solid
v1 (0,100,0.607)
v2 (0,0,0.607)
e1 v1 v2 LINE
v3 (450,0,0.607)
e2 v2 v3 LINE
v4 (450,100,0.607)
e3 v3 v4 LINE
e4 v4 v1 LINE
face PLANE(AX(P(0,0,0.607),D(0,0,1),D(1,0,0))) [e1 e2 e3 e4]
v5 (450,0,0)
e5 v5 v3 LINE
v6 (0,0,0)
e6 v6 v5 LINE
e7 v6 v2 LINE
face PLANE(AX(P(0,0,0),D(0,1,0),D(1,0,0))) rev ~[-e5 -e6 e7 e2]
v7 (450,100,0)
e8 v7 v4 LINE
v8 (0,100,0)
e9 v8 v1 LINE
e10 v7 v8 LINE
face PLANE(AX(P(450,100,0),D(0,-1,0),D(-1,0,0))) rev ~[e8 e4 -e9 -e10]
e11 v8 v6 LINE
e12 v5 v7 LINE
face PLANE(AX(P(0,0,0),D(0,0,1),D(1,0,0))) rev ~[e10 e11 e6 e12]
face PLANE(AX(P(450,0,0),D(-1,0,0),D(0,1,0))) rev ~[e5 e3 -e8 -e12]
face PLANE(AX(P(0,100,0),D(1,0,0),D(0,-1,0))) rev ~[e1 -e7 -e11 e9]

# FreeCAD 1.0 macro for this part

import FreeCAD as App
import Part
import Sketcher
from FreeCAD import Vector

doc = App.newDocument("Part")
body = doc.addObject("PartDesign::Body", "Body")

sketch1 = body.newObject("Sketcher::SketchObject", "Sketch")
sketch1.AttachmentSupport = (doc.getObject("XY_Plane"), [""])
sketch1.MapMode = "FlatFace"
sketch1.addGeometry(Part.LineSegment(Vector(0, 100, 0), Vector(0, 0, 0)), False)
sketch1.addGeometry(Part.LineSegment(Vector(0, 0, 0), Vector(450, 0, 0)), False)
sketch1.addGeometry(Part.LineSegment(Vector(450, 0, 0), Vector(450, 100, 0)), False)
sketch1.addGeometry(Part.LineSegment(Vector(450, 100, 0), Vector(0, 100, 0)), False)
sketch1.addConstraint(Sketcher.Constraint("Coincident", 0, 2, 1, 1))
sketch1.addConstraint(Sketcher.Constraint("Coincident", 1, 2, 2, 1))
sketch1.addConstraint(Sketcher.Constraint("Coincident", 2, 2, 3, 1))
sketch1.addConstraint(Sketcher.Constraint("Coincident", 3, 2, 0, 1))
sketch1.addConstraint(Sketcher.Constraint("Vertical", 0))
sketch1.addConstraint(Sketcher.Constraint("Horizontal", 1))
sketch1.addConstraint(Sketcher.Constraint("Vertical", 2))
sketch1.addConstraint(Sketcher.Constraint("Horizontal", 3))
sketch1.addConstraint(Sketcher.Constraint("Coincident", 0, 2, -1, 1))
sketch1.addConstraint(Sketcher.Constraint("DistanceX", 1, 1, 1, 2, 450.0))
sketch1.addConstraint(Sketcher.Constraint("DistanceY", 0, 2, 0, 1, 100.0))
pad1 = body.newObject("PartDesign::Pad", "Pad")
pad1.Profile = sketch1
pad1.Length = 0.607

doc.recompute()
